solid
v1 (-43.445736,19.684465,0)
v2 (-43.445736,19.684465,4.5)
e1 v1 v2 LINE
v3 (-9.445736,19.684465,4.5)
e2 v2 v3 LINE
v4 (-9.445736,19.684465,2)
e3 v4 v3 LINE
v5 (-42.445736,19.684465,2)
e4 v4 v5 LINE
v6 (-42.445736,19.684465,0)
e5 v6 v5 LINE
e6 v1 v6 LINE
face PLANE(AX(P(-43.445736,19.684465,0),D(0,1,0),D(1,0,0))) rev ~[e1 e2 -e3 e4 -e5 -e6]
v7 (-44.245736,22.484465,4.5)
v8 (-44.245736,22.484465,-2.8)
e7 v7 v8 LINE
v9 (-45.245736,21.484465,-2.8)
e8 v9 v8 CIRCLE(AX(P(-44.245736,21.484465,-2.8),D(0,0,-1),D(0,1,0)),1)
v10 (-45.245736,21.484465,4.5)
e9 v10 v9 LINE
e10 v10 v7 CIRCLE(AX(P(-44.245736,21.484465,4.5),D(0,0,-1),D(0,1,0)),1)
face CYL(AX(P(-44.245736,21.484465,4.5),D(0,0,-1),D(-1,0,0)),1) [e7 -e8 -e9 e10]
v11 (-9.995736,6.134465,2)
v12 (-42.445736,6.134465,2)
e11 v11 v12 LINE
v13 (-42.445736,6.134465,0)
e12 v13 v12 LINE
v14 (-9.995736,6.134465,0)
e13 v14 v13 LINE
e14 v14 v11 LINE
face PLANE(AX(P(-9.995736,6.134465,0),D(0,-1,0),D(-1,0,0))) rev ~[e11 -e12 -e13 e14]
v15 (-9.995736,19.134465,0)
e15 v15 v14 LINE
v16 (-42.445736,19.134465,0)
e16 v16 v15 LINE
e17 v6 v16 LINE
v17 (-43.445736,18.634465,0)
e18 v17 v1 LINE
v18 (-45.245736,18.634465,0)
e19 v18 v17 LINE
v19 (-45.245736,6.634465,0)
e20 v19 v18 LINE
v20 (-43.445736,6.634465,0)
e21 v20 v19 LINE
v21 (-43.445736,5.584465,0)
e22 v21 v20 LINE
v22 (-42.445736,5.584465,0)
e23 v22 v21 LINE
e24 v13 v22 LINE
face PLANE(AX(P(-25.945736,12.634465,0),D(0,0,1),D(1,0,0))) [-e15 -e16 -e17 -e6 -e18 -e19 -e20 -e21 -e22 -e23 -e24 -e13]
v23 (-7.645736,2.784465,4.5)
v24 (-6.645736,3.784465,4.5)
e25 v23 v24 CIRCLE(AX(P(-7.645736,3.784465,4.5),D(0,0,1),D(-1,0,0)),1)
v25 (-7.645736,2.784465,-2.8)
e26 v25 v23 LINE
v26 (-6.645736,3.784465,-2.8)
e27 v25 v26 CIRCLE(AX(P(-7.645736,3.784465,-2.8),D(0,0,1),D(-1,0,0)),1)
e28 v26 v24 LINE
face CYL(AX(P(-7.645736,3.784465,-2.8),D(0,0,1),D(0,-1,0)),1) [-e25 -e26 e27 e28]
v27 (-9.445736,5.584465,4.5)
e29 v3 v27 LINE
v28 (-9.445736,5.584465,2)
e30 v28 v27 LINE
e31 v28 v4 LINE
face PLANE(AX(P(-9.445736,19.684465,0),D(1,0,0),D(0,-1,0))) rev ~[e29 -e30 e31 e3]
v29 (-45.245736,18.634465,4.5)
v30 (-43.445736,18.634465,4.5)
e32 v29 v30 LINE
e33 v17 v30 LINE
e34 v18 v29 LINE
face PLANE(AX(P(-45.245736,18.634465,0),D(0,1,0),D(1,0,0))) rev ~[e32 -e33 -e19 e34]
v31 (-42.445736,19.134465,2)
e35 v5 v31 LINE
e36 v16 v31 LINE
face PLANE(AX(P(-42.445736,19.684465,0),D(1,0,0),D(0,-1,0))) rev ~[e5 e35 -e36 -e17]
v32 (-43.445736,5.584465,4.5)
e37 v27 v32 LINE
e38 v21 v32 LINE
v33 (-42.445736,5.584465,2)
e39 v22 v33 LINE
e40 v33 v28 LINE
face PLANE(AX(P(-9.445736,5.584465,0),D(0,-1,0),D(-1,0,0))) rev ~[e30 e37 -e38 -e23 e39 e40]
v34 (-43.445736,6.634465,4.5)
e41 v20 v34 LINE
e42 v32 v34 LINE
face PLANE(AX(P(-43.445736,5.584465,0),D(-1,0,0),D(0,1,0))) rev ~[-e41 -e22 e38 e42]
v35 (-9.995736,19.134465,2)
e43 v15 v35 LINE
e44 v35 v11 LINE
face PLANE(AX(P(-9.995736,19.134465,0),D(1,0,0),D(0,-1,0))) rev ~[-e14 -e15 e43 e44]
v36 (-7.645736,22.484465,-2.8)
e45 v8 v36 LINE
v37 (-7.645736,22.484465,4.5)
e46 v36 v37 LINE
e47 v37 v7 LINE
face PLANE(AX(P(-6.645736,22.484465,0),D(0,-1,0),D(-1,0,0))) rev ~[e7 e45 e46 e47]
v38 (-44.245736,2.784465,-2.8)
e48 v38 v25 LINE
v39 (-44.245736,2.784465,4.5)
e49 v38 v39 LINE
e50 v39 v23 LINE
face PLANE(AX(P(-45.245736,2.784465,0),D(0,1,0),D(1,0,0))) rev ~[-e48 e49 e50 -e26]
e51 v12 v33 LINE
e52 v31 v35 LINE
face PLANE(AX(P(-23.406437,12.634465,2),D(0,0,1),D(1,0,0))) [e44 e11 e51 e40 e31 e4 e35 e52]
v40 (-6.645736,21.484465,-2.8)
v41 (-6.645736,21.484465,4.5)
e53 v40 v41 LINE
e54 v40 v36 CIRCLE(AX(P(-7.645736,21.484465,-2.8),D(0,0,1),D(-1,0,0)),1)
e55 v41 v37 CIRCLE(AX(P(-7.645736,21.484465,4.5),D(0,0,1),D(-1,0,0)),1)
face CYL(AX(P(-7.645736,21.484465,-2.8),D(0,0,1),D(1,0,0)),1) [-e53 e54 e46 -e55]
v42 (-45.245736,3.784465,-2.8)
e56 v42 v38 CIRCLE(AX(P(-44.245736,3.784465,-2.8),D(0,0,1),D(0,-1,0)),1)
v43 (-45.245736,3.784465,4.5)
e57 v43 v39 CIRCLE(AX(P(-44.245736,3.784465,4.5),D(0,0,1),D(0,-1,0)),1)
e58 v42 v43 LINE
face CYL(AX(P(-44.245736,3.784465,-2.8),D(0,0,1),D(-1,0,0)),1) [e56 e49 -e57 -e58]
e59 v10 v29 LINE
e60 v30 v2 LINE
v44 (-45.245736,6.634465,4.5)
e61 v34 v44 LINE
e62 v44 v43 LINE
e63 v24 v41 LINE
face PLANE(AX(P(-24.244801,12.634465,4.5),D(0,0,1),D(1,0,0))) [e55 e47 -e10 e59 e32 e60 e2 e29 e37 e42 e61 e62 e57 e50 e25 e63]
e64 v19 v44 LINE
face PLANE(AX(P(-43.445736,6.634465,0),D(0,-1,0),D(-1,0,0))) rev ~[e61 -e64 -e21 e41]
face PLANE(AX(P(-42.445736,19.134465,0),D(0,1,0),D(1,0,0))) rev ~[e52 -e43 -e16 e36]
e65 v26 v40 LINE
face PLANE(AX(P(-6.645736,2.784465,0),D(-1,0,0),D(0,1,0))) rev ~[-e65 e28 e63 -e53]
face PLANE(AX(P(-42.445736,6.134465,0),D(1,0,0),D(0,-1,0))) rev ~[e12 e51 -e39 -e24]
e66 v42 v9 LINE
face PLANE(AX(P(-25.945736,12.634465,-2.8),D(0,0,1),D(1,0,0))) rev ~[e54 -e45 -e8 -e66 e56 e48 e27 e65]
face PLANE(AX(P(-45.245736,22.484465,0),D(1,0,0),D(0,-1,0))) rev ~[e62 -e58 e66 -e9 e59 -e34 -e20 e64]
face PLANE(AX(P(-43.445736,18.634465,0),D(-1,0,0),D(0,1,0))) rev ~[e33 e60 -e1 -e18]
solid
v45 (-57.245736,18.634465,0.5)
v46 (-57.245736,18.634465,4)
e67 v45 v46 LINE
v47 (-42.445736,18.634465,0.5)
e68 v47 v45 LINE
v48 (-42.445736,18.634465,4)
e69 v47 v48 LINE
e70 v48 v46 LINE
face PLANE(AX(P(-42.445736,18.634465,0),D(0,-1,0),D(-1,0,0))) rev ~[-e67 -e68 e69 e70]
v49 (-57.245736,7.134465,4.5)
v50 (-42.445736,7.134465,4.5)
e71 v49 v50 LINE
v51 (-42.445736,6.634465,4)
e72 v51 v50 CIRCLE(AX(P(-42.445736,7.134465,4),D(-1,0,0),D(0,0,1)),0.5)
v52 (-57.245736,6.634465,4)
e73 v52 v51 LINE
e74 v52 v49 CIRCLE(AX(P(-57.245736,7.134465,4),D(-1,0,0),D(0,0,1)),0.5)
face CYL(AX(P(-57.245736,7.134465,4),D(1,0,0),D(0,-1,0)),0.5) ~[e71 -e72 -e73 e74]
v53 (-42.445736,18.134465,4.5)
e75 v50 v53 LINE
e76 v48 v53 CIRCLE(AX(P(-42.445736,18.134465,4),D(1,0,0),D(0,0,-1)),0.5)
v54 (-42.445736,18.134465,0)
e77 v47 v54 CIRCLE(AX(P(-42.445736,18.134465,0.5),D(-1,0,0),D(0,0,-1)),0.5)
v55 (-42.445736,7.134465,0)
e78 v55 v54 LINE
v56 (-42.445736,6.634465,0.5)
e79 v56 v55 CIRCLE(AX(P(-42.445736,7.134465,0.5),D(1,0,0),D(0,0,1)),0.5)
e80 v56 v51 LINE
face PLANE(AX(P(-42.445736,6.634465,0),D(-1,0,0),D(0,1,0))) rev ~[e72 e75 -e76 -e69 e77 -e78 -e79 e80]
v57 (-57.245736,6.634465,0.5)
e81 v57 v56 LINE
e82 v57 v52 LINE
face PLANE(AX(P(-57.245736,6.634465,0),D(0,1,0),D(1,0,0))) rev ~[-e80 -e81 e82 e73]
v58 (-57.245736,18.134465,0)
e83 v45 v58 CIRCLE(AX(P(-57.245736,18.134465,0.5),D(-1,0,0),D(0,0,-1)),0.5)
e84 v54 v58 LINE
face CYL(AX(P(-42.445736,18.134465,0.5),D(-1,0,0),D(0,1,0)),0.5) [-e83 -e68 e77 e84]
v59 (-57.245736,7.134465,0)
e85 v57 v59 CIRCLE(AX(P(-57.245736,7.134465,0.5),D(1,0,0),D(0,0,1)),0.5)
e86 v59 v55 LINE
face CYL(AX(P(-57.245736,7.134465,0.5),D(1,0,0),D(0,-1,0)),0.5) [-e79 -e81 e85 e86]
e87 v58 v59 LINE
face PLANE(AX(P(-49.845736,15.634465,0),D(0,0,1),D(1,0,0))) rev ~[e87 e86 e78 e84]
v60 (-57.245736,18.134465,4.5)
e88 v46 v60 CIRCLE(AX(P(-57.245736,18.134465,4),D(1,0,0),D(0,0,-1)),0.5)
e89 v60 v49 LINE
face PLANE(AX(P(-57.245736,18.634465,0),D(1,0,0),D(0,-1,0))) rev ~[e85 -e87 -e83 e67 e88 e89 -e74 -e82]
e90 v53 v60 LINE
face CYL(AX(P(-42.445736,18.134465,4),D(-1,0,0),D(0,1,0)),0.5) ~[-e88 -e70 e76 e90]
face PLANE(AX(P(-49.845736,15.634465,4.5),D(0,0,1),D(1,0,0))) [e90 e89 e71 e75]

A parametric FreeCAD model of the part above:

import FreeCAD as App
import Part
import Sketcher

V = App.Vector


def edges_at(feature, points):
    """Names of the edges that pass closest to the given points."""
    edges = feature.Shape.Edges
    near = lambda p: min(range(len(edges)), key=lambda i: edges[i].distToShape(Part.Vertex(*p))[0])
    return sorted({f"Edge{near(p) + 1}" for p in points})

doc = App.newDocument("Part")
body = doc.addObject("PartDesign::Body", "Body")

# Sketch on XY plane
sketch1 = body.newObject("Sketcher::SketchObject", "Sketch")
sketch1.AttachmentSupport = (doc.getObject("XY_Plane"), [""])
sketch1.MapMode = "FlatFace"
sketch1.addGeometry(Part.LineSegment(V(-42.445736, 18.634465, 0), V(-57.245736, 18.634465, 0)), False)
sketch1.addGeometry(Part.LineSegment(V(-57.245736, 18.634465, 0), V(-57.245736, 6.634465, 0)), False)
sketch1.addGeometry(Part.LineSegment(V(-57.245736, 6.634465, 0), V(-42.445736, 6.634465, 0)), False)
sketch1.addGeometry(Part.LineSegment(V(-42.445736, 6.634465, 0), V(-42.445736, 18.634465, 0)), False)
sketch1.addConstraint(Sketcher.Constraint("Coincident", 0, 2, 1, 1))
sketch1.addConstraint(Sketcher.Constraint("Coincident", 1, 2, 2, 1))
sketch1.addConstraint(Sketcher.Constraint("Coincident", 2, 2, 3, 1))
sketch1.addConstraint(Sketcher.Constraint("Coincident", 3, 2, 0, 1))
sketch1.addConstraint(Sketcher.Constraint("Horizontal", 0))
sketch1.addConstraint(Sketcher.Constraint("Vertical", 1))
sketch1.addConstraint(Sketcher.Constraint("Horizontal", 2))
sketch1.addConstraint(Sketcher.Constraint("Vertical", 3))
sketch1.addConstraint(Sketcher.Constraint("DistanceY", 1, 2, 1, 1, 12.0))
sketch1.addConstraint(Sketcher.Constraint("DistanceX", 0, 2, 0, 1, 14.8))
sketch1.addConstraint(Sketcher.Constraint("DistanceX", 0, 2, -1, 1, 57.245736))
sketch1.addConstraint(Sketcher.Constraint("DistanceY", -1, 1, 0, 2, 18.634465))
pad1 = body.newObject("PartDesign::Pad", "Pad")
pad1.Profile = sketch1
pad1.Length = 4.5
doc.recompute()

fillet = body.newObject("PartDesign::Fillet", "Fillet")
fillet.Base = (pad1, edges_at(pad1, [
    (-49.846, 6.634, 4.5),
    (-49.846, 6.634, 0),
    (-49.846, 18.634, 0),
    (-49.846, 18.634, 4.5),
]))
fillet.Radius = 0.5
body2 = doc.addObject("PartDesign::Body", "Body001")

# Sketch on XY plane
sketch2 = body2.newObject("Sketcher::SketchObject", "Sketch001")
sketch2.AttachmentSupport = (doc.getObject("XY_Plane001"), [""])
sketch2.MapMode = "FlatFace"
sketch2.addGeometry(Part.LineSegment(V(-45.245736, 22.484465, 0), V(-45.245736, 2.784465, 0)), False)
sketch2.addGeometry(Part.LineSegment(V(-45.245736, 2.784465, 0), V(-6.645736, 2.784465, 0)), False)
sketch2.addGeometry(Part.LineSegment(V(-6.645736, 2.784465, 0), V(-6.645736, 22.484465, 0)), False)
sketch2.addGeometry(Part.LineSegment(V(-6.645736, 22.484465, 0), V(-45.245736, 22.484465, 0)), False)
sketch2.addConstraint(Sketcher.Constraint("Coincident", 0, 2, 1, 1))
sketch2.addConstraint(Sketcher.Constraint("Coincident", 1, 2, 2, 1))
sketch2.addConstraint(Sketcher.Constraint("Coincident", 2, 2, 3, 1))
sketch2.addConstraint(Sketcher.Constraint("Coincident", 3, 2, 0, 1))
sketch2.addConstraint(Sketcher.Constraint("Vertical", 0))
sketch2.addConstraint(Sketcher.Constraint("Horizontal", 1))
sketch2.addConstraint(Sketcher.Constraint("Vertical", 2))
sketch2.addConstraint(Sketcher.Constraint("Horizontal", 3))
sketch2.addConstraint(Sketcher.Constraint("DistanceX", 1, 1, 1, 2, 38.6))
sketch2.addConstraint(Sketcher.Constraint("DistanceY", 0, 2, 0, 1, 19.7))
sketch2.addConstraint(Sketcher.Constraint("DistanceX", 0, 2, -1, 1, 45.245736))
sketch2.addConstraint(Sketcher.Constraint("DistanceY", -1, 1, 0, 2, 2.784465))
pad2 = body2.newObject("PartDesign::Pad", "Pad001")
pad2.Profile = sketch2
pad2.Length = 2.8
pad2.Reversed = True
body3 = doc.addObject("PartDesign::Body", "Body002")

# Sketch on XY plane
sketch3 = body3.newObject("Sketcher::SketchObject", "Sketch002")
sketch3.AttachmentSupport = (doc.getObject("XY_Plane002"), [""])
sketch3.MapMode = "FlatFace"
sketch3.addGeometry(Part.LineSegment(V(-43.445736, 18.634465, 0), V(-43.445736, 19.684465, 0)), False)
sketch3.addGeometry(Part.LineSegment(V(-43.445736, 19.684465, 0), V(-9.445736, 19.684465, 0)), False)
sketch3.addGeometry(Part.LineSegment(V(-9.445736, 19.684465, 0), V(-9.445736, 5.584465, 0)), False)
sketch3.addGeometry(Part.LineSegment(V(-9.445736, 5.584465, 0), V(-43.445736, 5.584465, 0)), False)
sketch3.addGeometry(Part.LineSegment(V(-43.445736, 5.584465, 0), V(-43.445736, 6.634465, 0)), False)
sketch3.addGeometry(Part.LineSegment(V(-43.445736, 6.634465, 0), V(-45.245736, 6.634465, 0)), False)
sketch3.addGeometry(Part.LineSegment(V(-45.245736, 6.634465, 0), V(-45.245736, 2.784465, 0)), False)
sketch3.addGeometry(Part.LineSegment(V(-45.245736, 2.784465, 0), V(-6.645736, 2.784465, 0)), False)
sketch3.addGeometry(Part.LineSegment(V(-6.645736, 2.784465, 0), V(-6.645736, 22.484465, 0)), False)
sketch3.addGeometry(Part.LineSegment(V(-6.645736, 22.484465, 0), V(-45.245736, 22.484465, 0)), False)
sketch3.addGeometry(Part.LineSegment(V(-45.245736, 22.484465, 0), V(-45.245736, 18.634465, 0)), False)
sketch3.addGeometry(Part.LineSegment(V(-45.245736, 18.634465, 0), V(-43.445736, 18.634465, 0)), False)
sketch3.addConstraint(Sketcher.Constraint("Coincident", 0, 2, 1, 1))
sketch3.addConstraint(Sketcher.Constraint("Coincident", 1, 2, 2, 1))
sketch3.addConstraint(Sketcher.Constraint("Coincident", 2, 2, 3, 1))
sketch3.addConstraint(Sketcher.Constraint("Coincident", 3, 2, 4, 1))
sketch3.addConstraint(Sketcher.Constraint("Coincident", 4, 2, 5, 1))
sketch3.addConstraint(Sketcher.Constraint("Coincident", 5, 2, 6, 1))
sketch3.addConstraint(Sketcher.Constraint("Coincident", 6, 2, 7, 1))
sketch3.addConstraint(Sketcher.Constraint("Coincident", 7, 2, 8, 1))
sketch3.addConstraint(Sketcher.Constraint("Coincident", 8, 2, 9, 1))
sketch3.addConstraint(Sketcher.Constraint("Coincident", 9, 2, 10, 1))
sketch3.addConstraint(Sketcher.Constraint("Coincident", 10, 2, 11, 1))
sketch3.addConstraint(Sketcher.Constraint("Coincident", 11, 2, 0, 1))
sketch3.addConstraint(Sketcher.Constraint("Vertical", 0))
sketch3.addConstraint(Sketcher.Constraint("Horizontal", 1))
sketch3.addConstraint(Sketcher.Constraint("Vertical", 2))
sketch3.addConstraint(Sketcher.Constraint("Horizontal", 3))
sketch3.addConstraint(Sketcher.Constraint("Vertical", 4))
sketch3.addConstraint(Sketcher.Constraint("Horizontal", 5))
sketch3.addConstraint(Sketcher.Constraint("Vertical", 6))
sketch3.addConstraint(Sketcher.Constraint("Horizontal", 7))
sketch3.addConstraint(Sketcher.Constraint("Vertical", 8))
sketch3.addConstraint(Sketcher.Constraint("Horizontal", 9))
sketch3.addConstraint(Sketcher.Constraint("Vertical", 10))
sketch3.addConstraint(Sketcher.Constraint("Horizontal", 11))
sketch3.addConstraint(Sketcher.Constraint("Vertical", 0, 2, 3, 2))
sketch3.addConstraint(Sketcher.Constraint("Vertical", 6, 2, 9, 2))
sketch3.addConstraint(Sketcher.Constraint("Equal", 0, 4))
sketch3.addConstraint(Sketcher.Constraint("Equal", 6, 10))
sketch3.addConstraint(Sketcher.Constraint("DistanceX", 1, 1, 1, 2, 34.0))
sketch3.addConstraint(Sketcher.Constraint("DistanceX", 5, 2, 5, 1, 1.8))
sketch3.addConstraint(Sketcher.Constraint("DistanceX", 7, 1, 7, 2, 38.6))
sketch3.addConstraint(Sketcher.Constraint("DistanceY", 2, 2, 2, 1, 14.1))
sketch3.addConstraint(Sketcher.Constraint("DistanceY", 8, 1, 8, 2, 19.7))
sketch3.addConstraint(Sketcher.Constraint("DistanceY", 5, 2, 10, 2, 12.0))
sketch3.addConstraint(Sketcher.Constraint("DistanceX", 0, 2, -1, 1, 43.445736))
sketch3.addConstraint(Sketcher.Constraint("DistanceY", -1, 1, 0, 2, 19.684465))
pad3 = body3.newObject("PartDesign::Pad", "Pad002")
pad3.Profile = sketch3
pad3.Length = 4.5
doc.recompute()

boolean = body2.newObject("PartDesign::Boolean", "Boolean")
boolean.Type = "Fuse"
boolean.addObjects([body3])

# Sketch on XY plane
sketch4 = body2.newObject("Sketcher::SketchObject", "Sketch003")
sketch4.AttachmentSupport = (doc.getObject("XY_Plane001"), [""])
sketch4.MapMode = "FlatFace"
sketch4.addGeometry(Part.LineSegment(V(-9.445736, 19.684465, 0), V(-42.445736, 19.684465, 0)), False)
sketch4.addGeometry(Part.LineSegment(V(-42.445736, 19.684465, 0), V(-42.445736, 19.134465, 0)), False)
sketch4.addGeometry(Part.LineSegment(V(-42.445736, 19.134465, 0), V(-9.995736, 19.134465, 0)), False)
sketch4.addGeometry(Part.LineSegment(V(-9.995736, 19.134465, 0), V(-9.995736, 6.134465, 0)), False)
sketch4.addGeometry(Part.LineSegment(V(-9.995736, 6.134465, 0), V(-42.445736, 6.134465, 0)), False)
sketch4.addGeometry(Part.LineSegment(V(-42.445736, 6.134465, 0), V(-42.445736, 5.584465, 0)), False)
sketch4.addGeometry(Part.LineSegment(V(-42.445736, 5.584465, 0), V(-9.445736, 5.584465, 0)), False)
sketch4.addGeometry(Part.LineSegment(V(-9.445736, 5.584465, 0), V(-9.445736, 19.684465, 0)), False)
sketch4.addConstraint(Sketcher.Constraint("Coincident", 0, 2, 1, 1))
sketch4.addConstraint(Sketcher.Constraint("Coincident", 1, 2, 2, 1))
sketch4.addConstraint(Sketcher.Constraint("Coincident", 2, 2, 3, 1))
sketch4.addConstraint(Sketcher.Constraint("Coincident", 3, 2, 4, 1))
sketch4.addConstraint(Sketcher.Constraint("Coincident", 4, 2, 5, 1))
sketch4.addConstraint(Sketcher.Constraint("Coincident", 5, 2, 6, 1))
sketch4.addConstraint(Sketcher.Constraint("Coincident", 6, 2, 7, 1))
sketch4.addConstraint(Sketcher.Constraint("Coincident", 7, 2, 0, 1))
sketch4.addConstraint(Sketcher.Constraint("Horizontal", 0))
sketch4.addConstraint(Sketcher.Constraint("Vertical", 1))
sketch4.addConstraint(Sketcher.Constraint("Horizontal", 2))
sketch4.addConstraint(Sketcher.Constraint("Vertical", 3))
sketch4.addConstraint(Sketcher.Constraint("Horizontal", 4))
sketch4.addConstraint(Sketcher.Constraint("Vertical", 5))
sketch4.addConstraint(Sketcher.Constraint("Horizontal", 6))
sketch4.addConstraint(Sketcher.Constraint("Vertical", 7))
sketch4.addConstraint(Sketcher.Constraint("Vertical", 1, 2, 4, 2))
sketch4.addConstraint(Sketcher.Constraint("Equal", 1, 5))
sketch4.addConstraint(Sketcher.Constraint("DistanceX", 0, 2, 0, 1, 33.0))
sketch4.addConstraint(Sketcher.Constraint("DistanceY", 3, 2, 3, 1, 13.0))
sketch4.addConstraint(Sketcher.Constraint("DistanceY", 7, 1, 7, 2, 14.1))
sketch4.addConstraint(Sketcher.Constraint("DistanceX", 2, 1, 2, 2, 32.45))
sketch4.addConstraint(Sketcher.Constraint("DistanceX", 0, 2, -1, 1, 42.445736))
sketch4.addConstraint(Sketcher.Constraint("DistanceY", -1, 1, 0, 2, 19.684465))
pad4 = body2.newObject("PartDesign::Pad", "Pad003")
pad4.Profile = sketch4
pad4.Length = 2
doc.recompute()

fillet2 = body2.newObject("PartDesign::Fillet", "Fillet001")
fillet2.Base = (pad4, edges_at(pad4, [
    (-45.246, 2.784, 0.85),
    (-45.246, 22.484, 0.85),
    (-6.646, 22.484, 0.85),
    (-6.646, 2.784, 0.85),
]))
fillet2.Radius = 1

doc.recompute()
